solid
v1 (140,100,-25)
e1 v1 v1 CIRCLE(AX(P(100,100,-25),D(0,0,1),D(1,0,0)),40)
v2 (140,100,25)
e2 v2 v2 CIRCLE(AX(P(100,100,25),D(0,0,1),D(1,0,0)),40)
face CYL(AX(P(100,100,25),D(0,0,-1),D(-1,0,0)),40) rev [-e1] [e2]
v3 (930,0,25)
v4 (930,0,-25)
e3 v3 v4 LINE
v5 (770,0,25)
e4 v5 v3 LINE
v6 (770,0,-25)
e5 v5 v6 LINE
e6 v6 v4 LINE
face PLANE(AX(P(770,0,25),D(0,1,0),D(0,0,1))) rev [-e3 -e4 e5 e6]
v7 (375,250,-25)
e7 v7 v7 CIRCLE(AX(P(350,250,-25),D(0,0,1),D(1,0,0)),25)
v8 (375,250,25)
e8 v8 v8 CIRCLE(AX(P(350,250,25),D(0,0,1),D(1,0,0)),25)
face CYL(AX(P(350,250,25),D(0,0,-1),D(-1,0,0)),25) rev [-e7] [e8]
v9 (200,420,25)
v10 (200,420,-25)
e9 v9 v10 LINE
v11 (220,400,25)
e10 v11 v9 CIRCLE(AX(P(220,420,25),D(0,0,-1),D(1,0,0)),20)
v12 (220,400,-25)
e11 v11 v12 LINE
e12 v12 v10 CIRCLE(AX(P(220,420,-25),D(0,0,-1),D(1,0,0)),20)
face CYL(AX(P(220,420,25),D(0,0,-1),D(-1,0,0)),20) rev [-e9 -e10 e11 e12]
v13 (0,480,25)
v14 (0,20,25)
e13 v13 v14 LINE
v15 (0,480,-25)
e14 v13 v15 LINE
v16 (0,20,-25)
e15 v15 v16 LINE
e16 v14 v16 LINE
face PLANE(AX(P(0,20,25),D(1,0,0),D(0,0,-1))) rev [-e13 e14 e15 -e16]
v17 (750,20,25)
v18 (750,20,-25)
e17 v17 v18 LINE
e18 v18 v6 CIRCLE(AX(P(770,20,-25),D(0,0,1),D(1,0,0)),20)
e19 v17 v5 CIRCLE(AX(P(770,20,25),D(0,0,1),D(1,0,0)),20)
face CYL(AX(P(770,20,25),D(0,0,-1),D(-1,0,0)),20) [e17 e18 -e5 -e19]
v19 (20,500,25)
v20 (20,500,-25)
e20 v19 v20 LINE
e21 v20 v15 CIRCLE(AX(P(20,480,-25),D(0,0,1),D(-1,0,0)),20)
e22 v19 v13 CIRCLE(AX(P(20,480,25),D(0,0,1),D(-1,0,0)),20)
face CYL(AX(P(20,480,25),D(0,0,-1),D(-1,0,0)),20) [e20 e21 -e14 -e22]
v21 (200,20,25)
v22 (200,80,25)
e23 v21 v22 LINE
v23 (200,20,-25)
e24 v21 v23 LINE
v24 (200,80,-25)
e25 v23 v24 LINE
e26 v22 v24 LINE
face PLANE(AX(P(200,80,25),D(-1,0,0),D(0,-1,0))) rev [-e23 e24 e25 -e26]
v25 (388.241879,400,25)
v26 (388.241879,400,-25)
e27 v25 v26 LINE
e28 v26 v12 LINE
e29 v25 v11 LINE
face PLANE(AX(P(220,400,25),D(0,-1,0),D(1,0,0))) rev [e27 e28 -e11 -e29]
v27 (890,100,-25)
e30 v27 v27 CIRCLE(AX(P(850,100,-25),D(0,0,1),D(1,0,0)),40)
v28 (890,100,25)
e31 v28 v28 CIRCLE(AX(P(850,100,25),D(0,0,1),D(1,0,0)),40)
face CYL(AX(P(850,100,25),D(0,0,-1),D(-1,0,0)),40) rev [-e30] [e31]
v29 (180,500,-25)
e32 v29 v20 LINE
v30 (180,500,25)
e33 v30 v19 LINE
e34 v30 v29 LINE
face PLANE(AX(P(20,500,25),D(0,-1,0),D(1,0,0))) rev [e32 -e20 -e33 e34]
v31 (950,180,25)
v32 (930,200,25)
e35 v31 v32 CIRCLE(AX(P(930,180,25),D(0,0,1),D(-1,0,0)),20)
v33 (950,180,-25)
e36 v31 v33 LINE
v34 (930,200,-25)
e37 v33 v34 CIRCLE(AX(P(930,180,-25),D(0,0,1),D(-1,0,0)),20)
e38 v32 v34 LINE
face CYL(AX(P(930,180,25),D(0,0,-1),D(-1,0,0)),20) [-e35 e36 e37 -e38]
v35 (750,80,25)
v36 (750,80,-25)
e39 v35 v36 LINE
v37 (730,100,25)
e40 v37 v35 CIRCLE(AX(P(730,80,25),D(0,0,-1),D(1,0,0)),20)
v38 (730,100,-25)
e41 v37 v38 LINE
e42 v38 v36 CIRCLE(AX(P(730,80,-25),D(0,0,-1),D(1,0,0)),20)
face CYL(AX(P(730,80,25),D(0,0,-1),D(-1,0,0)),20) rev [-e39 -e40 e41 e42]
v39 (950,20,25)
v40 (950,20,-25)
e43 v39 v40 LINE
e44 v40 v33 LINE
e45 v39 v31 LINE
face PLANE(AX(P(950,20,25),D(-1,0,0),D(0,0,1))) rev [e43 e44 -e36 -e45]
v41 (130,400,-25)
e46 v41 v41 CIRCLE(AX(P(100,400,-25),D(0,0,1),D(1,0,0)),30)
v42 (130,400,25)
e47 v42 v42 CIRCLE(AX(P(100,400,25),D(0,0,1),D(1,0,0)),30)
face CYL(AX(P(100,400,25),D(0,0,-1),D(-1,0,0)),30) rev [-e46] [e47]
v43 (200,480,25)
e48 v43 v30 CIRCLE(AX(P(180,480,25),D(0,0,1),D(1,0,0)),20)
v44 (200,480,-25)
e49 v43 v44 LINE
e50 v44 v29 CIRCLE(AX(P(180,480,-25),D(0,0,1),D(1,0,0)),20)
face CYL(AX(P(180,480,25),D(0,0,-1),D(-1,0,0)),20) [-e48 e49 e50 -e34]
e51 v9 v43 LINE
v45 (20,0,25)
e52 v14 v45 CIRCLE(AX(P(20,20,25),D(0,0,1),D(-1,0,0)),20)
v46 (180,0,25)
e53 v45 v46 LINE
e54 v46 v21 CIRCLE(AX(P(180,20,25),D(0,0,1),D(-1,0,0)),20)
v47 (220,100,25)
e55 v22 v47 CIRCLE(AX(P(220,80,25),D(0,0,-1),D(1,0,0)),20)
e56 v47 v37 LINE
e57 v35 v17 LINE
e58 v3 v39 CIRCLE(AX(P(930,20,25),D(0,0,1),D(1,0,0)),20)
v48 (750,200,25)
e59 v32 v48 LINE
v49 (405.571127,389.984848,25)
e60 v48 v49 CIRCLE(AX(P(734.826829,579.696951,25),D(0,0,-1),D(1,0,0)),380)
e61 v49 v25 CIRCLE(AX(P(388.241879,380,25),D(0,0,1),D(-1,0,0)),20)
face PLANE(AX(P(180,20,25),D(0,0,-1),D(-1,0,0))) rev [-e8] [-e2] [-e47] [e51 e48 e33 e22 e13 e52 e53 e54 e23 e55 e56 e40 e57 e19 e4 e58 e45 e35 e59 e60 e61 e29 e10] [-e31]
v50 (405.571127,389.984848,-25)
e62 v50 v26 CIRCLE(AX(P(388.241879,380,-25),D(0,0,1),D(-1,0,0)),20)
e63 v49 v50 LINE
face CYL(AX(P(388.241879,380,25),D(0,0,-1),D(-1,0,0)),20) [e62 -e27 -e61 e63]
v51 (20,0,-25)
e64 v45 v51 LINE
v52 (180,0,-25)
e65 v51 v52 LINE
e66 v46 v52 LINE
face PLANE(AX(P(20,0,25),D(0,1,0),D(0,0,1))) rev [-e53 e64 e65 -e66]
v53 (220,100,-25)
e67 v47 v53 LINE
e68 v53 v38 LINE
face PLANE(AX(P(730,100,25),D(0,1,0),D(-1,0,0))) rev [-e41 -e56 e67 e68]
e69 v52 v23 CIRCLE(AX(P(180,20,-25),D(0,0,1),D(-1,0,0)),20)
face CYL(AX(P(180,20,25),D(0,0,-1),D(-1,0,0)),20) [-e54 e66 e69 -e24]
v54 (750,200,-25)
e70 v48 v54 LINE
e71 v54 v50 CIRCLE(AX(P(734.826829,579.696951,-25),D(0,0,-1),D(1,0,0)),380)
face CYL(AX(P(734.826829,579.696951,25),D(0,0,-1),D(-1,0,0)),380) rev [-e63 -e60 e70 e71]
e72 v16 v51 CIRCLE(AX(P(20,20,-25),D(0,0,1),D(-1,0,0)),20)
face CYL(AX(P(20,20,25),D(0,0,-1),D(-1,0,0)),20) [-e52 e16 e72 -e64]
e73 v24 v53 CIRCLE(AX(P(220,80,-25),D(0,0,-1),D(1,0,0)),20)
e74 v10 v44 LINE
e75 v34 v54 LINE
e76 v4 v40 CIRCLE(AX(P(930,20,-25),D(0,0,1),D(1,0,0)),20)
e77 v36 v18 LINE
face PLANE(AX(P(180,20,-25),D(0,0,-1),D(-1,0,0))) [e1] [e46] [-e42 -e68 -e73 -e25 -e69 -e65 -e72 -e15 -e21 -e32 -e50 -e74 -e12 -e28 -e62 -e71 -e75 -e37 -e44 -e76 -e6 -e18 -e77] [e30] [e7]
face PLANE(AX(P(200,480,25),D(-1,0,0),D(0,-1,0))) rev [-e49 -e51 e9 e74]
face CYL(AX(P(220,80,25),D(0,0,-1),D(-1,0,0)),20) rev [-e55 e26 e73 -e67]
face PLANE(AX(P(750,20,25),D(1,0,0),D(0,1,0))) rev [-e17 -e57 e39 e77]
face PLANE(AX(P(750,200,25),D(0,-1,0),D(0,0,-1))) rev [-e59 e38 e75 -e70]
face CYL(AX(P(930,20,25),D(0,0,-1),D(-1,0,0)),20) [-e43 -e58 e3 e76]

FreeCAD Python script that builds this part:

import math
import FreeCAD as App
import Part
import Sketcher
from FreeCAD import Vector
Q = App.Units.Quantity

doc = App.newDocument("Part")
body = doc.addObject("PartDesign::Body", "Body")

# Sketch on XY plane
sketch1 = body.newObject("Sketcher::SketchObject", "Sketch")
sketch1.AttachmentSupport = (doc.getObject("XY_Plane"), [""])
sketch1.MapMode = "FlatFace"
sketch1.addGeometry([
    Part.LineSegment(Vector(200, 420, 0), Vector(200, 480, 0)),  # 0
    Part.ArcOfCircle(Part.Circle(Vector(180, 480, 0), Vector(0, 0, 1), 20), math.radians(0), math.radians(90)),  # 1
    Part.LineSegment(Vector(180, 500, 0), Vector(20, 500, 0)),  # 2
    Part.ArcOfCircle(Part.Circle(Vector(20, 480, 0), Vector(0, 0, 1), 20), math.radians(90), math.radians(180)),  # 3
    Part.LineSegment(Vector(0, 480, 0), Vector(0, 20, 0)),  # 4
    Part.ArcOfCircle(Part.Circle(Vector(20, 20, 0), Vector(0, 0, 1), 20), math.radians(180), math.radians(270)),  # 5
    Part.LineSegment(Vector(20, 0, 0), Vector(180, 0, 0)),  # 6
    Part.ArcOfCircle(Part.Circle(Vector(180, 20, 0), Vector(0, 0, 1), 20), math.radians(-90), math.radians(0)),  # 7
    Part.LineSegment(Vector(200, 20, 0), Vector(200, 80, 0)),  # 8
    Part.ArcOfCircle(Part.Circle(Vector(220, 80, 0), Vector(0, 0, 1), 20), math.radians(90), math.radians(180)),  # 9
    Part.LineSegment(Vector(220, 100, 0), Vector(730, 100, 0)),  # 10
    Part.ArcOfCircle(Part.Circle(Vector(730, 80, 0), Vector(0, 0, 1), 20), math.radians(0), math.radians(90)),  # 11
    Part.LineSegment(Vector(750, 80, 0), Vector(750, 20, 0)),  # 12
    Part.ArcOfCircle(Part.Circle(Vector(770, 20, 0), Vector(0, 0, 1), 20), math.radians(180), math.radians(270)),  # 13
    Part.LineSegment(Vector(770, 0, 0), Vector(930, 0, 0)),  # 14
    Part.ArcOfCircle(Part.Circle(Vector(930, 20, 0), Vector(0, 0, 1), 20), math.radians(-90), math.radians(0)),  # 15
    Part.LineSegment(Vector(950, 20, 0), Vector(950, 180, 0)),  # 16
    Part.ArcOfCircle(Part.Circle(Vector(930, 180, 0), Vector(0, 0, 1), 20), math.radians(0), math.radians(90)),  # 17
    Part.LineSegment(Vector(930, 200, 0), Vector(750, 200, 0)),  # 18
    Part.ArcOfCircle(Part.Circle(Vector(734.826829, 579.696951, 0), Vector(0, 0, 1), 380), math.radians(-150.050111), math.radians(-87.711606)),  # 19
    Part.ArcOfCircle(Part.Circle(Vector(388.241879, 380, 0), Vector(0, 0, 1), 20), math.radians(29.949889), math.radians(90)),  # 20
    Part.LineSegment(Vector(388.241879, 400, 0), Vector(220, 400, 0)),  # 21
    Part.ArcOfCircle(Part.Circle(Vector(220, 420, 0), Vector(0, 0, 1), 20), math.radians(180), math.radians(270)),  # 22
    Part.Circle(Vector(850, 100, 0), Vector(0, 0, 1), 40),  # 23
    Part.Circle(Vector(100, 100, 0), Vector(0, 0, 1), 40),  # 24
    Part.Circle(Vector(350, 250, 0), Vector(0, 0, 1), 25),  # 25
    Part.Circle(Vector(100, 400, 0), Vector(0, 0, 1), 30),  # 26
], False)
sketch1.addConstraint([
    Sketcher.Constraint("Tangent", 0, 2, 1, 1),
    Sketcher.Constraint("Tangent", 1, 2, 2, 1),
    Sketcher.Constraint("Tangent", 2, 2, 3, 1),
    Sketcher.Constraint("Tangent", 3, 2, 4, 1),
    Sketcher.Constraint("Tangent", 4, 2, 5, 1),
    Sketcher.Constraint("Tangent", 5, 2, 6, 1),
    Sketcher.Constraint("Tangent", 6, 2, 7, 1),
    Sketcher.Constraint("Tangent", 7, 2, 8, 1),
    Sketcher.Constraint("Tangent", 8, 2, 9, 2),
    Sketcher.Constraint("Tangent", 9, 1, 10, 1),
    Sketcher.Constraint("Tangent", 10, 2, 11, 2),
    Sketcher.Constraint("Tangent", 11, 1, 12, 1),
    Sketcher.Constraint("Tangent", 12, 2, 13, 1),
    Sketcher.Constraint("Tangent", 13, 2, 14, 1),
    Sketcher.Constraint("Tangent", 14, 2, 15, 1),
    Sketcher.Constraint("Tangent", 15, 2, 16, 1),
    Sketcher.Constraint("Tangent", 16, 2, 17, 1),
    Sketcher.Constraint("Tangent", 17, 2, 18, 1),
    Sketcher.Constraint("Coincident", 18, 2, 19, 2),
    Sketcher.Constraint("Tangent", 19, 1, 20, 1),
    Sketcher.Constraint("Tangent", 20, 2, 21, 1),
    Sketcher.Constraint("Tangent", 21, 2, 22, 2),
    Sketcher.Constraint("Tangent", 22, 1, 0, 1),
    Sketcher.Constraint("Vertical", 0),
    Sketcher.Constraint("Horizontal", 2),
    Sketcher.Constraint("Vertical", 4),
    Sketcher.Constraint("Horizontal", 6),
    Sketcher.Constraint("Vertical", 8),
    Sketcher.Constraint("Horizontal", 10),
    Sketcher.Constraint("Vertical", 12),
    Sketcher.Constraint("Horizontal", 14),
    Sketcher.Constraint("Vertical", 16),
    Sketcher.Constraint("Horizontal", 18),
    Sketcher.Constraint("Horizontal", 21),
    Sketcher.Constraint("Equal", 1, 3),
    Sketcher.Constraint("Equal", 3, 5),
    Sketcher.Constraint("Equal", 5, 7),
    Sketcher.Constraint("Equal", 7, 9),
    Sketcher.Constraint("Equal", 9, 11),
    Sketcher.Constraint("Equal", 11, 13),
    Sketcher.Constraint("Equal", 13, 15),
    Sketcher.Constraint("Equal", 15, 17),
    Sketcher.Constraint("Equal", 17, 20),
    Sketcher.Constraint("Equal", 20, 22),
    Sketcher.Constraint("Equal", 23, 24),
    Sketcher.Constraint("PointOnObject", 3, 2, -2),
    Sketcher.Constraint("PointOnObject", 5, 2, -1),
    Sketcher.Constraint("PointOnObject", 13, 2, -1),
    Sketcher.Constraint("Horizontal", 23, 3, 24, 3),
    Sketcher.Constraint("Horizontal", 24, 3, 9, 1),
    Sketcher.Constraint("Horizontal", 26, 3, 20, 2),
    Sketcher.Constraint("Vertical", 1, 3, 7, 3),
    Sketcher.Constraint("Vertical", 24, 3, 26, 3),
    Sketcher.Constraint("Vertical", 12, 2, 18, 2),
    Sketcher.Constraint("Equal", 6, 14),
    Sketcher.Constraint("Equal", 0, 8),
    Sketcher.Constraint("Equal", 14, 16),
    Sketcher.Constraint("Diameter", 23, Q("80 mm")),
    Sketcher.Constraint("Diameter", 25, Q("50 mm")),
    Sketcher.Constraint("Diameter", 26, Q("60 mm")),
    Sketcher.Constraint("Radius", 1, Q("20 mm")),
    Sketcher.Constraint("Radius", 19, Q("380 mm")),
    Sketcher.Constraint("DistanceX", 2, 2, 2, 1, Q("160 mm")),
    Sketcher.Constraint("DistanceX", 10, 1, 10, 2, Q("510 mm")),
    Sketcher.Constraint("DistanceY", 0, 1, 0, 2, Q("60 mm")),
    Sketcher.Constraint("DistanceY", 4, 2, 4, 1, Q("460 mm")),
    Sketcher.Constraint("DistanceX", -1, 1, 23, 3, Q("850 mm")),
    Sketcher.Constraint("DistanceX", -1, 1, 24, 3, Q("100 mm")),
    Sketcher.Constraint("DistanceX", -1, 1, 25, 3, Q("350 mm")),
    Sketcher.Constraint("DistanceY", -1, 1, 25, 3, Q("250 mm")),
    Sketcher.Constraint("DistanceX", 21, 2, 21, 1, Q("168.241879 mm")),
])
pad1 = body.newObject("PartDesign::Pad", "Pad")
pad1.Profile = sketch1
pad1.Length = 50
pad1.Midplane = True

doc.recompute()
